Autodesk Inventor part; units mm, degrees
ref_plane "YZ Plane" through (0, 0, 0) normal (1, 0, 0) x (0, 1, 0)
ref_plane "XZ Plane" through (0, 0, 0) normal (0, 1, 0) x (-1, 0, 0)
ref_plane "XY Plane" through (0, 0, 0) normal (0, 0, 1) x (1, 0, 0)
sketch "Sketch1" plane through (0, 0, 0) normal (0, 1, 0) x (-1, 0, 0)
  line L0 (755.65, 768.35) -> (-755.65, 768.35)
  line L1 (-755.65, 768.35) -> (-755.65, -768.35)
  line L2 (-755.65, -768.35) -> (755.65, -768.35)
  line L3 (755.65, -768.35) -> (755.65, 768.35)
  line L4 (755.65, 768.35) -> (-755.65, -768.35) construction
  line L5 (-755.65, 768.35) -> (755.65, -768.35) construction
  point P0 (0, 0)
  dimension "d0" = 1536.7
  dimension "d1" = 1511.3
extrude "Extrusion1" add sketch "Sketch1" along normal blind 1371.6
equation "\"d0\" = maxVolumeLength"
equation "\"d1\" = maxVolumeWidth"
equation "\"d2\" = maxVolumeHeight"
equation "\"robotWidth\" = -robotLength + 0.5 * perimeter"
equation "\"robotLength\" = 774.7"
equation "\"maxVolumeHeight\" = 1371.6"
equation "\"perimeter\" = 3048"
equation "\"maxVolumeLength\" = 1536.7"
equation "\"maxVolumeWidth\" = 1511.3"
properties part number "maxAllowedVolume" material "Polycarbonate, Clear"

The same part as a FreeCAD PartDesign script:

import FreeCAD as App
import Part
import Sketcher
Q = App.Units.Quantity


def add_polygon(sketch, points):
    """Adds a closed chain of lines whose ends are joined by coincident constraints."""
    first, n = sketch.GeometryCount, len(points)
    for a, b in zip(points, points[1:] + points[:1]):
        sketch.addGeometry(Part.LineSegment(App.Vector(*a, 0), App.Vector(*b, 0)), False)
    for i in range(n):
        sketch.addConstraint(Sketcher.Constraint("Coincident", first + i, 2, first + (i + 1) % n, 1))

doc = App.newDocument("Part")
body = doc.addObject("PartDesign::Body", "Body")

# Sketch on XZ plane
sketch1 = body.newObject("Sketcher::SketchObject", "Sketch")
sketch1.AttachmentSupport = (doc.getObject("XZ_Plane"), [""])
sketch1.MapMode = "FlatFace"
add_polygon(sketch1, [(-756, -768), (-756, 768), (756, 768), (756, -768)])  # lines 0-3
sketch1.addConstraint([
    Sketcher.Constraint("Vertical", 0),
    Sketcher.Constraint("Horizontal", 1),
    Sketcher.Constraint("Vertical", 2),
    Sketcher.Constraint("Horizontal", 3),
    Sketcher.Constraint("Symmetric", 0, 2, 2, 2, -1, 1),
    Sketcher.Constraint("DistanceX", 1, 1, 1, 2, Q("59.5 in")),
    Sketcher.Constraint("DistanceY", 0, 1, 0, 2, Q("60.5 in")),
])
pad1 = body.newObject("PartDesign::Pad", "Pad")
pad1.Profile = sketch1
pad1.Length = Q("54 in")
pad1.Reversed = True

doc.recompute()
